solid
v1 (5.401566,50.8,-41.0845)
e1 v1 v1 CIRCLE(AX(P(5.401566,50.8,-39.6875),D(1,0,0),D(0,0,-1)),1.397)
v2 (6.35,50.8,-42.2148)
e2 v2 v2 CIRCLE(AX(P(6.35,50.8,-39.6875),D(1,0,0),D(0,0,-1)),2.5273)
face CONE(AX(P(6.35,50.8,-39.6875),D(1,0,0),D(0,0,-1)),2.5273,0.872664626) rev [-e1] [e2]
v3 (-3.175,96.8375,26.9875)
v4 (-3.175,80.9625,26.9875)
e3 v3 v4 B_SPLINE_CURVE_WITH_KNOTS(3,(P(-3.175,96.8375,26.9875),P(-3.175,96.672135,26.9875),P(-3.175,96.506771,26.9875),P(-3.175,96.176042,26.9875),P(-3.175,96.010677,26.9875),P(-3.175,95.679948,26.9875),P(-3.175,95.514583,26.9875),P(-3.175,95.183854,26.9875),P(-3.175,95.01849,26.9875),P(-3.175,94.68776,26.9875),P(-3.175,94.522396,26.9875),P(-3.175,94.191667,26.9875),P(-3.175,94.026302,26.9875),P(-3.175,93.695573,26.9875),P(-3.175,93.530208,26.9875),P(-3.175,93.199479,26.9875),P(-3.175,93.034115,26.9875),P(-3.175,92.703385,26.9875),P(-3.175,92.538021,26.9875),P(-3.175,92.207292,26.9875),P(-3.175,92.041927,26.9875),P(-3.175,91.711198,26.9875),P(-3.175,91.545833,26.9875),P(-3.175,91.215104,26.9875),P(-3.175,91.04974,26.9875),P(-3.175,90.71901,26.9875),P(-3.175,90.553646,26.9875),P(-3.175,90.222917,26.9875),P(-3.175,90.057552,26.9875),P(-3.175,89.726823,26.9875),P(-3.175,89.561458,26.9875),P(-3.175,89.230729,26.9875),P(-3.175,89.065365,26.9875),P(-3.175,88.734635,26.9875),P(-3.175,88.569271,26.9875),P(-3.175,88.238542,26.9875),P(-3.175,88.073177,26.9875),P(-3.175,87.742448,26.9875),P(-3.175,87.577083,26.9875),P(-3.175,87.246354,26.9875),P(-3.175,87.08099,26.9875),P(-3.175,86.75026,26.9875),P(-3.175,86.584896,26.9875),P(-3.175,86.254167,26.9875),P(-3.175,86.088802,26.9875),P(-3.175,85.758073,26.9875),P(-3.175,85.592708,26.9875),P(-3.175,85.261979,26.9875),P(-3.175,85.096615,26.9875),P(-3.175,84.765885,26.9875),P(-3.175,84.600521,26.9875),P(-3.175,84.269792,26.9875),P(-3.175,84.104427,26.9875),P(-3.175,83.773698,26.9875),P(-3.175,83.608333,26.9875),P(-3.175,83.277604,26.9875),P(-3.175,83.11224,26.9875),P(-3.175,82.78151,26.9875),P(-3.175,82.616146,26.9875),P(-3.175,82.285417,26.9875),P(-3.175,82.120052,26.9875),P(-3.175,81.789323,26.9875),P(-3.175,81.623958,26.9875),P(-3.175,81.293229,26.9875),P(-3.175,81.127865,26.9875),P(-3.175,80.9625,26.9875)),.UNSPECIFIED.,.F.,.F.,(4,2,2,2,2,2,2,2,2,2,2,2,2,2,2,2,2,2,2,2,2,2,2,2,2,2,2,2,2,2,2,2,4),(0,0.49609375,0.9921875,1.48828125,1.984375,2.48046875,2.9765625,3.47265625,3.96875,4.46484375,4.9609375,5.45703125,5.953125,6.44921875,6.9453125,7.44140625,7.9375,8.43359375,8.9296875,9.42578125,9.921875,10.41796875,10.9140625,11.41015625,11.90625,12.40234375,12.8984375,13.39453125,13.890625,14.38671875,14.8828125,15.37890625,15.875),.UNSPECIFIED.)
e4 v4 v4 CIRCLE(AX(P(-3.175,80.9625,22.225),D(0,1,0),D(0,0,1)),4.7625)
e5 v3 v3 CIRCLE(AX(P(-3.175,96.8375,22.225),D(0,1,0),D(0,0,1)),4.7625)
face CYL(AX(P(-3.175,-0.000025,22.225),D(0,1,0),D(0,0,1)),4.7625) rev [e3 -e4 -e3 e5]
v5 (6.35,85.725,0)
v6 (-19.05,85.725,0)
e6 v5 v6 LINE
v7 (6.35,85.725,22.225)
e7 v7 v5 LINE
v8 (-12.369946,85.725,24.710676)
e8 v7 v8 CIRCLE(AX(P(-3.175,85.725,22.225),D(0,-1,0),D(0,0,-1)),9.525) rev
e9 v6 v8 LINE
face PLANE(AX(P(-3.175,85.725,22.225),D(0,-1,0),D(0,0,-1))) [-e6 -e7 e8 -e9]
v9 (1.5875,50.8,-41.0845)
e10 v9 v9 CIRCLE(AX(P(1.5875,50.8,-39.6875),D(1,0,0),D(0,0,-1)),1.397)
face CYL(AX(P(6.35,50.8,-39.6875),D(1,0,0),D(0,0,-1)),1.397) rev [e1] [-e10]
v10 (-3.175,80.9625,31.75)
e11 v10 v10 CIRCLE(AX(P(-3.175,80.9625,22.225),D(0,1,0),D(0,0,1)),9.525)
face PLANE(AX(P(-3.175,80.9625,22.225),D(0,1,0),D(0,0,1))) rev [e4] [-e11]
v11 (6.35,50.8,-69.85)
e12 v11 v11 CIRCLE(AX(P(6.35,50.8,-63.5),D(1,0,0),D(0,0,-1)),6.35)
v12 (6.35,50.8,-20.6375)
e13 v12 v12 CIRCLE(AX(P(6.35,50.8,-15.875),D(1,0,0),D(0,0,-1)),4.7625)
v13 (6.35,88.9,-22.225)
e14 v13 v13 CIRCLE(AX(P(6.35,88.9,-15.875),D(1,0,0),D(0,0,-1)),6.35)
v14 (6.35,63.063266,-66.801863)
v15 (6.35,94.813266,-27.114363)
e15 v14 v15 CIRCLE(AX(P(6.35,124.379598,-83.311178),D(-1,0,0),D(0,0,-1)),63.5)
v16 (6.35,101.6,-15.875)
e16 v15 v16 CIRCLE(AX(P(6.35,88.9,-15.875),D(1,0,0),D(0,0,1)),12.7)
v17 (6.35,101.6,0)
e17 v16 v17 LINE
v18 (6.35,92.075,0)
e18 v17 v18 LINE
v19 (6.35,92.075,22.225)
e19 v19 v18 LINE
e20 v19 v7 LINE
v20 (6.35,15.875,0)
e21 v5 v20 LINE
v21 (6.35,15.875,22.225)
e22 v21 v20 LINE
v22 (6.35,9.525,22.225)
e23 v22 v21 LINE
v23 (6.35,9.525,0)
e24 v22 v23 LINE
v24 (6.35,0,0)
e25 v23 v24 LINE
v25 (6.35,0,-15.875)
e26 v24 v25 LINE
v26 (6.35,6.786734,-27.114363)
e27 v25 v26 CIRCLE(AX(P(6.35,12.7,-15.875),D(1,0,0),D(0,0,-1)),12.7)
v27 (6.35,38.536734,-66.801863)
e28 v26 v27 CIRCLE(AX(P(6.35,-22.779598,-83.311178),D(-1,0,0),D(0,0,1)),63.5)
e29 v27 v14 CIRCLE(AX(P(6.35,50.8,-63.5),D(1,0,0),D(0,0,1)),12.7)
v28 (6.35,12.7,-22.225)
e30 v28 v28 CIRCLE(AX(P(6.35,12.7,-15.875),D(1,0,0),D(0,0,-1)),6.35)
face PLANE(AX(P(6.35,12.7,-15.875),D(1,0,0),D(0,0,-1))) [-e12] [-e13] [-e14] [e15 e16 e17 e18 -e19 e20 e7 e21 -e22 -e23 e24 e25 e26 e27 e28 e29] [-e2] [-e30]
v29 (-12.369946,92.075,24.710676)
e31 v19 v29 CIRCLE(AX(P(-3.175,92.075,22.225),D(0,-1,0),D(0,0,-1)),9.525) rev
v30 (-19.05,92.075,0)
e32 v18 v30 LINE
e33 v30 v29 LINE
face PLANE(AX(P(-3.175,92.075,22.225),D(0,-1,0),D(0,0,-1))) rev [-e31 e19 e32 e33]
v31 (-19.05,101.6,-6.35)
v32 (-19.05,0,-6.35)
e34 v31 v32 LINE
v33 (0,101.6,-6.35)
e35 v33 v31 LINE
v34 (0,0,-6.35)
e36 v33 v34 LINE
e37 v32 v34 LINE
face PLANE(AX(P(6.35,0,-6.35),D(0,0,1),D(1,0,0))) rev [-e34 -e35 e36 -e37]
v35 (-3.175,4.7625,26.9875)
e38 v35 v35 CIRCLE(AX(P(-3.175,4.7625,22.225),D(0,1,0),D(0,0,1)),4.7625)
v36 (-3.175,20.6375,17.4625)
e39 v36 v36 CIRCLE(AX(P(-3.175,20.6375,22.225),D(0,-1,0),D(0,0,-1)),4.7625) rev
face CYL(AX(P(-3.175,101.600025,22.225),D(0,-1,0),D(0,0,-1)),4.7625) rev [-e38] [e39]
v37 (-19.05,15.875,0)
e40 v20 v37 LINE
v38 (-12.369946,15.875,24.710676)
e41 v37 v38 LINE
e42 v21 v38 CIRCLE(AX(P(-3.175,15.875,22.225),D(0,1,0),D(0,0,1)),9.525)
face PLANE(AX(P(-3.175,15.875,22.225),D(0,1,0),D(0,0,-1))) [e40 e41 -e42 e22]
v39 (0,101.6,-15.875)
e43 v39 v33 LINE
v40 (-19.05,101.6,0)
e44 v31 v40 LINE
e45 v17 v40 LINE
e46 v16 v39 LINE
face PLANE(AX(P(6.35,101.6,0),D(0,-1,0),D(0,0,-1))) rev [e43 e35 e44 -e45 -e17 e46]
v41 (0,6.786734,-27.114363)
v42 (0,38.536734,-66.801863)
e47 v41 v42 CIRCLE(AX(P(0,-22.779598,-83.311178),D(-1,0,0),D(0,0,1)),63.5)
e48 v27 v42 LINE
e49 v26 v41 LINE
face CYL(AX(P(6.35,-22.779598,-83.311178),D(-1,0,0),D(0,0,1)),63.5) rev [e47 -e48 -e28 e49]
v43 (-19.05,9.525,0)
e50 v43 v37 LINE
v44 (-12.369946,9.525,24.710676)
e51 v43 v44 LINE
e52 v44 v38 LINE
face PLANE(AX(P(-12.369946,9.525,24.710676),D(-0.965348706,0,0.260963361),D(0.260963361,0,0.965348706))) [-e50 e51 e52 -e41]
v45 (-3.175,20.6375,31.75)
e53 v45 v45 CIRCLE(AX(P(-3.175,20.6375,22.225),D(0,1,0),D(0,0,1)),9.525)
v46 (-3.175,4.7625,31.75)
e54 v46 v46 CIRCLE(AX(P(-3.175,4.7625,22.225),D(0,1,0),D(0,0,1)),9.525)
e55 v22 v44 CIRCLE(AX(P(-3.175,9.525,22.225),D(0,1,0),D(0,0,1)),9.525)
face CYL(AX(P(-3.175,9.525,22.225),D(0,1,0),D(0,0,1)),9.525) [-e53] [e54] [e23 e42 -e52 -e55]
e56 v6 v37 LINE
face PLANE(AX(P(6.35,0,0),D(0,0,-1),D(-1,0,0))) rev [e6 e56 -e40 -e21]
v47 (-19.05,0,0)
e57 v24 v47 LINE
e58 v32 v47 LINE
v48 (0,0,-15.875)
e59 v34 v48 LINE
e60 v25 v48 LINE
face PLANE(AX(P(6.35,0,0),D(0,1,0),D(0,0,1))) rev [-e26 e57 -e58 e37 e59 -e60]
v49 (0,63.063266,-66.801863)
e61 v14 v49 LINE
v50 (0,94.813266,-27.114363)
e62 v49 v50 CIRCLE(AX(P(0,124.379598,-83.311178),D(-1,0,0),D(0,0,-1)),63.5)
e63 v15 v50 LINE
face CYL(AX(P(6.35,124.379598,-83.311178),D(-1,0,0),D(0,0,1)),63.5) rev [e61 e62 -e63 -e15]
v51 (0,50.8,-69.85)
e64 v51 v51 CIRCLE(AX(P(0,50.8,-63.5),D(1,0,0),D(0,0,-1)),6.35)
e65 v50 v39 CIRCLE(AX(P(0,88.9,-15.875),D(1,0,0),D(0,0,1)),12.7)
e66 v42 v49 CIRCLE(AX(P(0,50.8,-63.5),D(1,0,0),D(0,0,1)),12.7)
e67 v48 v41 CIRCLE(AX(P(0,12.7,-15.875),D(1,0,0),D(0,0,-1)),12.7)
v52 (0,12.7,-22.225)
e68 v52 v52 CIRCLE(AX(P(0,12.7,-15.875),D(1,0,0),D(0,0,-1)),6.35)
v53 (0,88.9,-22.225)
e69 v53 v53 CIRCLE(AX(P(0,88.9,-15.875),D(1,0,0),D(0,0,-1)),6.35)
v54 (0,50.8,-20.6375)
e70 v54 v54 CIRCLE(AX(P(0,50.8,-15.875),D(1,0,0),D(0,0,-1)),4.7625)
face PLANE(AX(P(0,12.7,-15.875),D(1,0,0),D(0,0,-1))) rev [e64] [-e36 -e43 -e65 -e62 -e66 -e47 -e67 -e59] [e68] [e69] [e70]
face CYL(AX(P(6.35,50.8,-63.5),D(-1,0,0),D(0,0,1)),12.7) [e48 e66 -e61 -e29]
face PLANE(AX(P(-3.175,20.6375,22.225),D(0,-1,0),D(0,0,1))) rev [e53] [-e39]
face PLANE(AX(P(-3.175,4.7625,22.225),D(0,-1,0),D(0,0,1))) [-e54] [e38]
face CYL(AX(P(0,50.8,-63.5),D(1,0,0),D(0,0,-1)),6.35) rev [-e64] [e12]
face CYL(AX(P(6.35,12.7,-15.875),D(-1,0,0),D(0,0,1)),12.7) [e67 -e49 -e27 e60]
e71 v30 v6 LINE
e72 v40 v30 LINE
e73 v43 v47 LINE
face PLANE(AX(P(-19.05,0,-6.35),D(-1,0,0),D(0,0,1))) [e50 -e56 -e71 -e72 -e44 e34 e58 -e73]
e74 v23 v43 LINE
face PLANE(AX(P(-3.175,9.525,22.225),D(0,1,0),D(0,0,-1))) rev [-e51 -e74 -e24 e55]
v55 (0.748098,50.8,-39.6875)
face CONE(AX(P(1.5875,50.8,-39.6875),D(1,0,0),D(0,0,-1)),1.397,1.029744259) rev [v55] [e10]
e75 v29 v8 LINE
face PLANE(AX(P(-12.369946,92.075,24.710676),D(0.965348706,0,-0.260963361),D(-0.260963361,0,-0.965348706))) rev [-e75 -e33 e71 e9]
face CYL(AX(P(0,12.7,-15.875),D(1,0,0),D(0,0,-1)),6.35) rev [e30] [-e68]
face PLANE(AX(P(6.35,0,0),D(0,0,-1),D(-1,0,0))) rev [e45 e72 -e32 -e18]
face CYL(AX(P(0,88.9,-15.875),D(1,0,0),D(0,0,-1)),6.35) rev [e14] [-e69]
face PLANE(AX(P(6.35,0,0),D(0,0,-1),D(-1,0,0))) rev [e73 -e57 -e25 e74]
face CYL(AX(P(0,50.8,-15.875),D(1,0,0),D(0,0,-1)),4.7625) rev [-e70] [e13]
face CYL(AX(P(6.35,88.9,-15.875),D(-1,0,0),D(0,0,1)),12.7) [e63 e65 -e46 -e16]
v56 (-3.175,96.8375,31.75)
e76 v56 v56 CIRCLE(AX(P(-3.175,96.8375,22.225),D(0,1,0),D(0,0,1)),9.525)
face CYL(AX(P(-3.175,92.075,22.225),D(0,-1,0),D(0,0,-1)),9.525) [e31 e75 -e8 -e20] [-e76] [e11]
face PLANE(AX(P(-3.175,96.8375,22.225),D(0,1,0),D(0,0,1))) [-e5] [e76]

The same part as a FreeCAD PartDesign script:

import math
import FreeCAD as App
import Part
import Sketcher
Q = App.Units.Quantity


def add_polygon(sketch, points):
    """Adds a closed chain of lines whose ends are joined by coincident constraints."""
    first, n = sketch.GeometryCount, len(points)
    for a, b in zip(points, points[1:] + points[:1]):
        sketch.addGeometry(Part.LineSegment(App.Vector(*a, 0), App.Vector(*b, 0)), False)
    for i in range(n):
        sketch.addConstraint(Sketcher.Constraint("Coincident", first + i, 2, first + (i + 1) % n, 1))

doc = App.newDocument("Part")
params = doc.addObject("Spreadsheet::Sheet", "Params")
for row, (alias, value) in enumerate([
    ("sketch1_radius", "0.5 in"),
    ("sketch1_radius2", "2.5 in"),
    ("sketch1_width", "4 in"),
    ("sketch1_height", "0.625 in"),
    ("pad1_length", "0.25 in"),
    ("sketch2_diameter", "0.5 in"),
    ("sketch2_diameter2", "0.375 in"),
    ("sketch3_width", "1 in"),
    ("sketch3_height", "4 in"),
    ("pad2_length", "0.25 in"),
    ("sketch4_width", "1 in"),
    ("sketch4_radius", "0.375 in"),
    ("sketch4_height", "0.875 in"),
    ("pad3_length", "0.25 in"),
    ("sketch5_diameter", "0.75 in"),
    ("pad4_length", "0.625 in"),
    ("sketch6_diameter", "0.375 in"),
    ("sketch7_diameter", "0.11 in"),
    ("hole_diameter", "0.11 in"),
    ("hole_depth", "0.1875 in"),
    ("hole_csink_diameter", "0.199 in"),
], start=1):
    params.set(f"A{row}", alias)
    params.set(f"B{row}", "=" + value)
    params.setAlias(f"B{row}", alias)

body = doc.addObject("PartDesign::Body", "Body")

# Sketch on YZ plane
sketch1 = body.newObject("Sketcher::SketchObject", "Sketch")
sketch1.AttachmentSupport = (doc.getObject("YZ_Plane"), [""])
sketch1.MapMode = "FlatFace"
sketch1.addGeometry(Part.LineSegment(App.Vector(101.6, 0, 0), App.Vector(0, 0, 0)), False)
sketch1.addGeometry(Part.LineSegment(App.Vector(0, 0, 0), App.Vector(0, -15.875, 0)), False)
sketch1.addGeometry(Part.ArcOfCircle(Part.Circle(App.Vector(12.7, -15.875, 0), App.Vector(0, 0, 1), 12.7), math.radians(180), math.radians(242.250194)), False)
sketch1.addGeometry(Part.ArcOfCircle(Part.Circle(App.Vector(-22.779598, -83.311178, 0), App.Vector(0, 0, 1), 63.5), math.radians(15.069422), math.radians(62.250194)), False)
sketch1.addGeometry(Part.ArcOfCircle(Part.Circle(App.Vector(50.8, -63.5, 0), App.Vector(0, 0, 1), 12.7), math.radians(-164.930578), math.radians(-15.069422)), False)
sketch1.addGeometry(Part.ArcOfCircle(Part.Circle(App.Vector(124.379598, -83.311178, 0), App.Vector(0, 0, 1), 63.5), math.radians(117.749806), math.radians(164.930578)), False)
sketch1.addGeometry(Part.ArcOfCircle(Part.Circle(App.Vector(88.9, -15.875, 0), App.Vector(0, 0, 1), 12.7), math.radians(-62.250194), math.radians(0)), False)
sketch1.addGeometry(Part.LineSegment(App.Vector(101.6, -15.875, 0), App.Vector(101.6, 0, 0)), False)
sketch1.addConstraint(Sketcher.Constraint("Coincident", 0, 2, 1, 1))
sketch1.addConstraint(Sketcher.Constraint("Tangent", 1, 2, 2, 1))
sketch1.addConstraint(Sketcher.Constraint("Tangent", 2, 2, 3, 2))
sketch1.addConstraint(Sketcher.Constraint("Tangent", 3, 1, 4, 1))
sketch1.addConstraint(Sketcher.Constraint("Tangent", 4, 2, 5, 2))
sketch1.addConstraint(Sketcher.Constraint("Tangent", 5, 1, 6, 1))
sketch1.addConstraint(Sketcher.Constraint("Tangent", 6, 2, 7, 1))
sketch1.addConstraint(Sketcher.Constraint("Coincident", 7, 2, 0, 1))
sketch1.addConstraint(Sketcher.Constraint("Horizontal", 0))
sketch1.addConstraint(Sketcher.Constraint("Vertical", 1))
sketch1.addConstraint(Sketcher.Constraint("Vertical", 7))
sketch1.addConstraint(Sketcher.Constraint("Coincident", 0, 2, -1, 1))
sketch1.addConstraint(Sketcher.Constraint("Equal", 2, 4))
sketch1.addConstraint(Sketcher.Constraint("Equal", 3, 5))
sketch1.addConstraint(Sketcher.Constraint("Equal", 4, 6))
sketch1.addConstraint(Sketcher.Constraint("Horizontal", 3, 3, 5, 3))
sketch1.addConstraint(Sketcher.Constraint("Horizontal", 2, 3, 6, 3))
sketch1.addConstraint(Sketcher.Constraint("Radius", 2, Q("0.5 in")))
sketch1.addConstraint(Sketcher.Constraint("Radius", 3, Q("2.5 in")))
sketch1.addConstraint(Sketcher.Constraint("DistanceX", 0, 2, 0, 1, Q("4 in")))
sketch1.addConstraint(Sketcher.Constraint("DistanceY", 4, 3, -1, 1, Q("2.5 in")))
sketch1.addConstraint(Sketcher.Constraint("DistanceY", 1, 2, 1, 1, Q("0.625 in")))
sketch1.setExpression("Constraints[17]", "Params.sketch1_radius")
sketch1.setExpression("Constraints[18]", "Params.sketch1_radius2")
sketch1.setExpression("Constraints[19]", "Params.sketch1_width")
sketch1.setExpression("Constraints[21]", "Params.sketch1_height")
pad1 = body.newObject("PartDesign::Pad", "Pad")
pad1.Profile = sketch1
pad1.setExpression("Length", "Params.pad1_length")

# Sketch on YZ plane
sketch2 = body.newObject("Sketcher::SketchObject", "Sketch001")
sketch2.AttachmentSupport = (doc.getObject("YZ_Plane"), [""])
sketch2.MapMode = "FlatFace"
sketch2.AttachmentOffset = App.Placement(App.Vector(0, 0, 0.25 * 25.4), App.Rotation())
sketch2.addGeometry(Part.Circle(App.Vector(50.8, -63.5, 0), App.Vector(0, 0, 1), 6.35), False)
sketch2.addGeometry(Part.Circle(App.Vector(88.9, -15.875, 0), App.Vector(0, 0, 1), 6.35), False)
sketch2.addGeometry(Part.Circle(App.Vector(12.7, -15.875, 0), App.Vector(0, 0, 1), 6.35), False)
sketch2.addGeometry(Part.Circle(App.Vector(50.8, -15.875, 0), App.Vector(0, 0, 1), 4.7625), False)
sketch2.addConstraint(Sketcher.Constraint("Equal", 0, 1))
sketch2.addConstraint(Sketcher.Constraint("Equal", 1, 2))
sketch2.addConstraint(Sketcher.Constraint("Horizontal", 1, 3, 2, 3))
sketch2.addConstraint(Sketcher.Constraint("Horizontal", 2, 3, 3, 3))
sketch2.addConstraint(Sketcher.Constraint("Vertical", 0, 3, 3, 3))
sketch2.addConstraint(Sketcher.Constraint("Diameter", 0, Q("0.5 in")))
sketch2.addConstraint(Sketcher.Constraint("Diameter", 3, Q("0.375 in")))
sketch2.addConstraint(Sketcher.Constraint("DistanceX", -1, 1, 0, 3, Q("2 in")))
sketch2.addConstraint(Sketcher.Constraint("DistanceX", 2, 3, 1, 3, Q("3 in")))
sketch2.addConstraint(Sketcher.Constraint("DistanceY", 0, 3, -1, 1, Q("2.5 in")))
sketch2.addConstraint(Sketcher.Constraint("DistanceX", -1, 1, 1, 3, Q("3.5 in")))
sketch2.addConstraint(Sketcher.Constraint("DistanceY", 1, 3, -1, 1, Q("0.625 in")))
sketch2.setExpression("Constraints[5]", "Params.sketch2_diameter")
sketch2.setExpression("Constraints[6]", "Params.sketch2_diameter2")
pocket1 = body.newObject("PartDesign::Pocket", "Pocket")
pocket1.Profile = sketch2
pocket1.Type = "ThroughAll"

# Sketch on XY plane
sketch3 = body.newObject("Sketcher::SketchObject", "Sketch002")
sketch3.AttachmentSupport = (doc.getObject("XY_Plane"), [""])
sketch3.MapMode = "FlatFace"
add_polygon(sketch3, [(-19.05, 101.6), (-19.05, 0), (6.35, 0), (6.35, 101.6)])  # lines 0-3
sketch3.addConstraint(Sketcher.Constraint("Vertical", 0))
sketch3.addConstraint(Sketcher.Constraint("Horizontal", 1))
sketch3.addConstraint(Sketcher.Constraint("Vertical", 2))
sketch3.addConstraint(Sketcher.Constraint("Horizontal", 3))
sketch3.addConstraint(Sketcher.Constraint("PointOnObject", 0, 2, -1))
sketch3.addConstraint(Sketcher.Constraint("DistanceX", 1, 1, 1, 2, Q("1 in")))
sketch3.addConstraint(Sketcher.Constraint("DistanceY", 0, 2, 0, 1, Q("4 in")))
sketch3.addConstraint(Sketcher.Constraint("DistanceX", 0, 2, -1, 1, Q("0.75 in")))
sketch3.setExpression("Constraints[9]", "Params.sketch3_width")
sketch3.setExpression("Constraints[10]", "Params.sketch3_height")
pad2 = body.newObject("PartDesign::Pad", "Pad001")
pad2.Profile = sketch3
pad2.setExpression("Length", "Params.pad2_length")
pad2.Reversed = True

# Sketch on XZ plane
sketch4 = body.newObject("Sketcher::SketchObject", "Sketch003")
sketch4.AttachmentSupport = (doc.getObject("XZ_Plane"), [""])
sketch4.MapMode = "FlatFace"
sketch4.AttachmentOffset = App.Placement(App.Vector(0, 0, -3.5 * 25.4), App.Rotation())
sketch4.addGeometry(Part.LineSegment(App.Vector(6.35, 0, 0), App.Vector(-19.05, 0, 0)), False)
sketch4.addGeometry(Part.LineSegment(App.Vector(-19.05, 0, 0), App.Vector(-12.369946, 24.710676, 0)), False)
sketch4.addGeometry(Part.ArcOfCircle(Part.Circle(App.Vector(-3.175, 22.225, 0), App.Vector(0, 0, 1), 9.525), math.radians(0), math.radians(164.872768)), False)
sketch4.addGeometry(Part.LineSegment(App.Vector(6.35, 22.225, 0), App.Vector(6.35, 0, 0)), False)
sketch4.addConstraint(Sketcher.Constraint("Coincident", 0, 2, 1, 1))
sketch4.addConstraint(Sketcher.Constraint("Tangent", 1, 2, 2, 2))
sketch4.addConstraint(Sketcher.Constraint("Tangent", 2, 1, 3, 1))
sketch4.addConstraint(Sketcher.Constraint("Coincident", 3, 2, 0, 1))
sketch4.addConstraint(Sketcher.Constraint("Horizontal", 0))
sketch4.addConstraint(Sketcher.Constraint("Vertical", 3))
sketch4.addConstraint(Sketcher.Constraint("PointOnObject", 0, 2, -1))
sketch4.addConstraint(Sketcher.Constraint("DistanceX", 0, 2, 0, 1, Q("1 in")))
sketch4.addConstraint(Sketcher.Constraint("Radius", 2, Q("0.375 in")))
sketch4.addConstraint(Sketcher.Constraint("DistanceY", 3, 2, 3, 1, Q("0.875 in")))
sketch4.addConstraint(Sketcher.Constraint("DistanceX", 0, 2, -1, 1, Q("0.75 in")))
sketch4.setExpression("Constraints[7]", "Params.sketch4_width")
sketch4.setExpression("Constraints[8]", "Params.sketch4_radius")
sketch4.setExpression("Constraints[9]", "Params.sketch4_height")
pad3 = body.newObject("PartDesign::Pad", "Pad002")
pad3.Profile = sketch4
pad3.setExpression("Length", "Params.pad3_length")
pad3.Midplane = True

# Sketch on XZ plane
sketch5 = body.newObject("Sketcher::SketchObject", "Sketch004")
sketch5.AttachmentSupport = (doc.getObject("XZ_Plane"), [""])
sketch5.MapMode = "FlatFace"
sketch5.AttachmentOffset = App.Placement(App.Vector(0, 0, -3.5 * 25.4), App.Rotation())
sketch5.addGeometry(Part.Circle(App.Vector(-3.175, 22.225, 0), App.Vector(0, 0, 1), 9.525), False)
sketch5.addConstraint(Sketcher.Constraint("Diameter", 0, Q("0.75 in")))
sketch5.addConstraint(Sketcher.Constraint("DistanceX", 0, 3, -1, 1, Q("0.125 in")))
sketch5.addConstraint(Sketcher.Constraint("DistanceY", -1, 1, 0, 3, Q("0.875 in")))
sketch5.setExpression("Constraints[0]", "Params.sketch5_diameter")
pad4 = body.newObject("PartDesign::Pad", "Pad003")
pad4.Profile = sketch5
pad4.setExpression("Length", "Params.pad4_length")
pad4.Midplane = True

# Sketch on XZ plane
sketch6 = body.newObject("Sketcher::SketchObject", "Sketch005")
sketch6.AttachmentSupport = (doc.getObject("XZ_Plane"), [""])
sketch6.MapMode = "FlatFace"
sketch6.AttachmentOffset = App.Placement(App.Vector(0, 0, -3.8125 * 25.4), App.Rotation())
sketch6.addGeometry(Part.Circle(App.Vector(-3.175, 22.225, 0), App.Vector(0, 0, 1), 4.7625), False)
sketch6.addConstraint(Sketcher.Constraint("Diameter", 0, Q("0.375 in")))
sketch6.addConstraint(Sketcher.Constraint("DistanceX", 0, 3, -1, 1, Q("0.125 in")))
sketch6.addConstraint(Sketcher.Constraint("DistanceY", -1, 1, 0, 3, Q("0.875 in")))
sketch6.setExpression("Constraints[0]", "Params.sketch6_diameter")
pocket2 = body.newObject("PartDesign::Pocket", "Pocket001")
pocket2.Profile = sketch6
pocket2.Type = "ThroughAll"
pocket2.Reversed = True
doc.recompute()

datumplane = body.newObject("PartDesign::Plane", "DatumPlane")
datumplane.AttachmentSupport = (doc.getObject("XZ_Plane"), [""])
datumplane.MapMode = "FlatFace"
datumplane.AttachmentOffset = App.Placement(App.Vector(0, 0, -2 * 25.4), App.Rotation())
mirrored = body.newObject("PartDesign::Mirrored", "Mirrored")
mirrored.Originals = [pad3, pad4, pocket2]
mirrored.MirrorPlane = (datumplane, [""])
body.Tip = mirrored

# Sketch on YZ plane
sketch7 = body.newObject("Sketcher::SketchObject", "Sketch006")
sketch7.AttachmentSupport = (doc.getObject("YZ_Plane"), [""])
sketch7.MapMode = "FlatFace"
sketch7.AttachmentOffset = App.Placement(App.Vector(0, 0, 0.25 * 25.4), App.Rotation())
sketch7.addGeometry(Part.Circle(App.Vector(50.8, -39.6875, 0), App.Vector(0, 0, 1), 1.397), False)
sketch7.addConstraint(Sketcher.Constraint("Diameter", 0, Q("0.11 in")))
sketch7.addConstraint(Sketcher.Constraint("DistanceX", -1, 1, 0, 3, Q("2 in")))
sketch7.addConstraint(Sketcher.Constraint("DistanceY", 0, 3, -1, 1, Q("1.5625 in")))
sketch7.setExpression("Constraints[0]", "Params.sketch7_diameter")
doc.recompute()
hole = body.newObject("PartDesign::Hole", "Hole")
hole.Profile = sketch7
hole.ThreadType = "None"
hole.setExpression("Diameter", "Params.hole_diameter")
hole.DepthType = "Dimension"
hole.setExpression("Depth", "Params.hole_depth")
hole.DrillPoint = "Angled"
hole.DrillPointAngle = 118
hole.HoleCutType = "Countersink"
hole.setExpression("HoleCutDiameter", "Params.hole_csink_diameter")
hole.HoleCutCountersinkAngle = 100

doc.recompute()
